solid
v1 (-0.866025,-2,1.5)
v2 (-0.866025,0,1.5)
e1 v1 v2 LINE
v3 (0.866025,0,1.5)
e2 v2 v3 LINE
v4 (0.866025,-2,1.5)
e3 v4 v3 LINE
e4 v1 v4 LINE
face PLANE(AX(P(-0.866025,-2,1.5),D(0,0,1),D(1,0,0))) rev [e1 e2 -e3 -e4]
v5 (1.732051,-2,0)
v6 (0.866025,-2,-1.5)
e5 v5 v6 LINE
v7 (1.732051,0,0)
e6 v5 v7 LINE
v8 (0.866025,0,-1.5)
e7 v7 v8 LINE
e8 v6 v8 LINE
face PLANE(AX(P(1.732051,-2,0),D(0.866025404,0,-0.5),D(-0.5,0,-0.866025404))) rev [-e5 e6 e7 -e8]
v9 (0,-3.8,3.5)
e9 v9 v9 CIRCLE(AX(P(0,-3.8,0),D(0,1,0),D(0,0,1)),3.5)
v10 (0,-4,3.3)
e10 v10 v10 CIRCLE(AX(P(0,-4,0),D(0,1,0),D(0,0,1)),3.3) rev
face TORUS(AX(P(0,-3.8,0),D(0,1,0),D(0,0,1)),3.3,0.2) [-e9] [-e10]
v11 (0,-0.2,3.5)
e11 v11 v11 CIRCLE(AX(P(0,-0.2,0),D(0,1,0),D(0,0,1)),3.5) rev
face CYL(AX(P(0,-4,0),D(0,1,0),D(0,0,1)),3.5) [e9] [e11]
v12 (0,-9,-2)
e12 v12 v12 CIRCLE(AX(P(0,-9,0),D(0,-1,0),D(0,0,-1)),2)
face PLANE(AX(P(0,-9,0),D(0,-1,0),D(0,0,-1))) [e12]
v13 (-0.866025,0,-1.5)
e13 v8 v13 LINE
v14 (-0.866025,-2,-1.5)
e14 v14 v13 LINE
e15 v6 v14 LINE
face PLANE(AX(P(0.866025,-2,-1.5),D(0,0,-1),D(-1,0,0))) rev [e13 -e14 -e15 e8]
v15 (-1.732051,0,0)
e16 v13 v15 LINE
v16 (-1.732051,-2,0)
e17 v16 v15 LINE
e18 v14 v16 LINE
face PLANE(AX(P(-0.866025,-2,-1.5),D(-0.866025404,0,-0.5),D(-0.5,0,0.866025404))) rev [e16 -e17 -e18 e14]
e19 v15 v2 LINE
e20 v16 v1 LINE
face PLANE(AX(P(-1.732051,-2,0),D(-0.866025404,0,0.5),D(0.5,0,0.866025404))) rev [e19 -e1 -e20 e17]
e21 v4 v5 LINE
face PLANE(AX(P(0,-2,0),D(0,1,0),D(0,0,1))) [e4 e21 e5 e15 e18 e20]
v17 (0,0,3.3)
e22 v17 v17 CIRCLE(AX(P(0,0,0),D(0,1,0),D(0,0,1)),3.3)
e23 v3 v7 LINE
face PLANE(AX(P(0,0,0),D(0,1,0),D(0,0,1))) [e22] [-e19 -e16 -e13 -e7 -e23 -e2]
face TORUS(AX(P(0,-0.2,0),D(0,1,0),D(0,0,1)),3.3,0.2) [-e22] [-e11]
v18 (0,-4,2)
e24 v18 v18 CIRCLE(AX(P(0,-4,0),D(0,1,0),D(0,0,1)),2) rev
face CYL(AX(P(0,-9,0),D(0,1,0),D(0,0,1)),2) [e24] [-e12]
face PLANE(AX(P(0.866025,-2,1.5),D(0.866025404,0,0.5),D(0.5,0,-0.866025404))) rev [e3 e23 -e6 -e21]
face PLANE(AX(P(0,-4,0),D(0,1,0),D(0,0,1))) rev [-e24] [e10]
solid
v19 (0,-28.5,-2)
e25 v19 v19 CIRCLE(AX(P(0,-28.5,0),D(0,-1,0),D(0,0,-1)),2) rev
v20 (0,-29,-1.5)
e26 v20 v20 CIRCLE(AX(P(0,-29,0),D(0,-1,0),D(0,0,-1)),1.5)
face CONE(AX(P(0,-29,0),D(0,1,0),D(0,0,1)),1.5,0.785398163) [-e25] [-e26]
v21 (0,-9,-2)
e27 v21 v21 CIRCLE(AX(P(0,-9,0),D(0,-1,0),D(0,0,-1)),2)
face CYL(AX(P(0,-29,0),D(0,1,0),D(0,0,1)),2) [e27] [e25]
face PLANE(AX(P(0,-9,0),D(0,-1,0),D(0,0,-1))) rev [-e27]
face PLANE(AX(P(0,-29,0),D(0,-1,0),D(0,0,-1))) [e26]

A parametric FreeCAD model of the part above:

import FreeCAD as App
import Part
import Sketcher
from FreeCAD import Vector
Q = App.Units.Quantity


def edges_at(feature, points):
    """Names of the edges that pass closest to the given points."""
    edges = feature.Shape.Edges
    near = lambda p: min(range(len(edges)), key=lambda i: edges[i].distToShape(Part.Vertex(*p))[0])
    return sorted({f"Edge{near(p) + 1}" for p in points})

doc = App.newDocument("Part")
params = doc.addObject("Spreadsheet::Sheet", "Params")
for row, (alias, value) in enumerate([
    ("sketch1_diameter", "7 mm"),
    ("pad1_length", "4 mm"),
    ("pocket1_length", "2 mm"),
    ("sketch3_diameter", "4 mm"),
    ("pad2_length", "5 mm"),
    ("fillet_radius", "0.2 mm"),
    ("sketch4_diameter", "4 mm"),
    ("pad3_length", "20 mm"),
    ("chamfer_size", "0.5 mm"),
], start=1):
    params.set(f"A{row}", alias)
    params.set(f"B{row}", "=" + value)
    params.setAlias(f"B{row}", alias)

body = doc.addObject("PartDesign::Body", "Body")

# Sketch on XZ plane
sketch1 = body.newObject("Sketcher::SketchObject", "Sketch")
sketch1.AttachmentSupport = (doc.getObject("XZ_Plane"), [""])
sketch1.MapMode = "FlatFace"
sketch1.addGeometry(Part.Circle(Vector(0, 0, 0), Vector(0, 0, 1), 3.5), False)
sketch1.addConstraint([
    Sketcher.Constraint("Coincident", 0, 3, -1, 1),
    Sketcher.Constraint("Diameter", 0, Q("7 mm")),
])
sketch1.setExpression("Constraints[1]", "Params.sketch1_diameter")
pad1 = body.newObject("PartDesign::Pad", "Pad")
pad1.Profile = sketch1
pad1.setExpression("Length", "Params.pad1_length")

# Sketch on XZ plane
sketch2 = body.newObject("Sketcher::SketchObject", "Sketch001")
sketch2.AttachmentSupport = (doc.getObject("XZ_Plane"), [""])
sketch2.MapMode = "FlatFace"
sketch2.addGeometry([
    Part.LineSegment(Vector(1.7, 0, 0), Vector(0.9, -1.5, 0)),  # 0
    Part.LineSegment(Vector(0.9, -1.5, 0), Vector(-0.9, -1.5, 0)),  # 1
    Part.LineSegment(Vector(-0.9, -1.5, 0), Vector(-1.7, 0, 0)),  # 2
    Part.LineSegment(Vector(-1.7, 0, 0), Vector(-0.9, 1.5, 0)),  # 3
    Part.LineSegment(Vector(-0.9, 1.5, 0), Vector(0.9, 1.5, 0)),  # 4
    Part.LineSegment(Vector(0.9, 1.5, 0), Vector(1.7, 0, 0)),  # 5
], False)
sketch2.addConstraint([
    Sketcher.Constraint("Coincident", 0, 2, 1, 1),
    Sketcher.Constraint("Coincident", 1, 2, 2, 1),
    Sketcher.Constraint("Coincident", 2, 2, 3, 1),
    Sketcher.Constraint("Coincident", 3, 2, 4, 1),
    Sketcher.Constraint("Coincident", 4, 2, 5, 1),
    Sketcher.Constraint("Coincident", 5, 2, 0, 1),
    Sketcher.Constraint("Horizontal", 1),
    Sketcher.Constraint("Horizontal", 4),
    Sketcher.Constraint("Symmetric", 0, 2, 3, 2, -1, 1),
    Sketcher.Constraint("Symmetric", 2, 2, 5, 2, -1, 1),
    Sketcher.Constraint("PointOnObject", 2, 2, -1),
    Sketcher.Constraint("Parallel", 2, 5),
    Sketcher.Constraint("Vertical", 1, 2, 3, 2),
    Sketcher.Constraint("Angle", 0, Q("-120 deg")),
    Sketcher.Constraint("DistanceY", 1, 2, 3, 2, Q("3 mm")),
    Sketcher.Constraint("DistanceX", 1, 2, 1, 1, Q("1.732051 mm")),
])
pocket1 = body.newObject("PartDesign::Pocket", "Pocket")
pocket1.Profile = sketch2
pocket1.setExpression("Length", "Params.pocket1_length")
pocket1.Reversed = True

# Sketch on XZ plane
sketch3 = body.newObject("Sketcher::SketchObject", "Sketch002")
sketch3.AttachmentSupport = (doc.getObject("XZ_Plane"), [""])
sketch3.MapMode = "FlatFace"
sketch3.AttachmentOffset = App.Placement(Vector(0, 0, 4), App.Rotation())
sketch3.addGeometry(Part.Circle(Vector(0, 0, 0), Vector(0, 0, 1), 2), False)
sketch3.addConstraint([
    Sketcher.Constraint("Coincident", 0, 3, -1, 1),
    Sketcher.Constraint("Diameter", 0, Q("4 mm")),
])
sketch3.setExpression("Constraints[1]", "Params.sketch3_diameter")
pad2 = body.newObject("PartDesign::Pad", "Pad001")
pad2.Profile = sketch3
pad2.setExpression("Length", "Params.pad2_length")
doc.recompute()

fillet = body.newObject("PartDesign::Fillet", "Fillet")
fillet.Base = (pad2, edges_at(pad2, [(0, 0, -3.5), (0, -4, -3.5)]))
fillet.setExpression("Radius", "Params.fillet_radius")
body2 = doc.addObject("PartDesign::Body", "Body001")

# Sketch on XZ plane
sketch4 = body2.newObject("Sketcher::SketchObject", "Sketch003")
sketch4.AttachmentSupport = (doc.getObject("XZ_Plane001"), [""])
sketch4.MapMode = "FlatFace"
sketch4.AttachmentOffset = App.Placement(Vector(0, 0, 9), App.Rotation())
sketch4.addGeometry(Part.Circle(Vector(0, 0, 0), Vector(0, 0, 1), 2), False)
sketch4.addConstraint([
    Sketcher.Constraint("Coincident", 0, 3, -1, 1),
    Sketcher.Constraint("Diameter", 0, Q("4 mm")),
])
sketch4.setExpression("Constraints[1]", "Params.sketch4_diameter")
pad3 = body2.newObject("PartDesign::Pad", "Pad002")
pad3.Profile = sketch4
pad3.setExpression("Length", "Params.pad3_length")
doc.recompute()

chamfer = body2.newObject("PartDesign::Chamfer", "Chamfer")
chamfer.Base = (pad3, edges_at(pad3, [(0, -29, 2)]))
chamfer.setExpression("Size", "Params.chamfer_size")

doc.recompute()
